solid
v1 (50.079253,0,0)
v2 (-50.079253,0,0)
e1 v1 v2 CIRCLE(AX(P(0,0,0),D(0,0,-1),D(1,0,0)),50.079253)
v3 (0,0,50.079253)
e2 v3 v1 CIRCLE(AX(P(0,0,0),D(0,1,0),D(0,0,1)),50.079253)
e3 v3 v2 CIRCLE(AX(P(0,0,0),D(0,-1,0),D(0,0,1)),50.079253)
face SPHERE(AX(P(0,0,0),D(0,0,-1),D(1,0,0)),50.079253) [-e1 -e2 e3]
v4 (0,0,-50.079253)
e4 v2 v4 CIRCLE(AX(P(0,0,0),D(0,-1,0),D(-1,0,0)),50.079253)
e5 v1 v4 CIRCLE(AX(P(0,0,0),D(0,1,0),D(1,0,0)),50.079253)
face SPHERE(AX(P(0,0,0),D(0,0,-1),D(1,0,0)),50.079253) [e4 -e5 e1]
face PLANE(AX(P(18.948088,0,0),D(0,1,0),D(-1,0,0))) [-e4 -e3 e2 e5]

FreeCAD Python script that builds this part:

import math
import FreeCAD as App
import Part
import Sketcher
Q = App.Units.Quantity

doc = App.newDocument("Part")
params = doc.addObject("Spreadsheet::Sheet", "Params")
for row, (alias, value) in enumerate([
    ("revolution_angle", "180 deg"),
], start=1):
    params.set(f"A{row}", alias)
    params.set(f"B{row}", "=" + value)
    params.setAlias(f"B{row}", alias)

body = doc.addObject("PartDesign::Body", "Body")

# Sketch on XZ plane
sketch1 = body.newObject("Sketcher::SketchObject", "Sketch")
sketch1.AttachmentSupport = (doc.getObject("XZ_Plane"), [""])
sketch1.MapMode = "FlatFace"
sketch1.addGeometry([
    Part.ArcOfCircle(Part.Circle(App.Vector(0, 0, 0), App.Vector(0, 0, 1), 50), math.radians(0), math.radians(90)),
    Part.ArcOfCircle(Part.Circle(App.Vector(0, 0, 0), App.Vector(0, 0, 1), 50), math.radians(-90), math.radians(0)),
    Part.LineSegment(App.Vector(0, -50, 0), App.Vector(0, 50, 0)),
], False)
sketch1.addConstraint([
    Sketcher.Constraint("Tangent", 0, 1, 1, 2),
    Sketcher.Constraint("Coincident", 1, 1, 2, 1),
    Sketcher.Constraint("Coincident", 2, 2, 0, 2),
    Sketcher.Constraint("Vertical", 2),
    Sketcher.Constraint("Coincident", 0, 3, -1, 1),
    Sketcher.Constraint("Equal", 0, 1),
    Sketcher.Constraint("PointOnObject", 0, 1, -1),
    Sketcher.Constraint("PointOnObject", 1, 1, -2),
    Sketcher.Constraint("Radius", 0, Q("50.079253 mm")),
])
revolution = body.newObject("PartDesign::Revolution", "Revolution")
revolution.Profile = sketch1
revolution.ReferenceAxis = (sketch1, ["V_Axis"])
revolution.setExpression("Angle", "Params.revolution_angle")
revolution.Reversed = True

doc.recompute()
